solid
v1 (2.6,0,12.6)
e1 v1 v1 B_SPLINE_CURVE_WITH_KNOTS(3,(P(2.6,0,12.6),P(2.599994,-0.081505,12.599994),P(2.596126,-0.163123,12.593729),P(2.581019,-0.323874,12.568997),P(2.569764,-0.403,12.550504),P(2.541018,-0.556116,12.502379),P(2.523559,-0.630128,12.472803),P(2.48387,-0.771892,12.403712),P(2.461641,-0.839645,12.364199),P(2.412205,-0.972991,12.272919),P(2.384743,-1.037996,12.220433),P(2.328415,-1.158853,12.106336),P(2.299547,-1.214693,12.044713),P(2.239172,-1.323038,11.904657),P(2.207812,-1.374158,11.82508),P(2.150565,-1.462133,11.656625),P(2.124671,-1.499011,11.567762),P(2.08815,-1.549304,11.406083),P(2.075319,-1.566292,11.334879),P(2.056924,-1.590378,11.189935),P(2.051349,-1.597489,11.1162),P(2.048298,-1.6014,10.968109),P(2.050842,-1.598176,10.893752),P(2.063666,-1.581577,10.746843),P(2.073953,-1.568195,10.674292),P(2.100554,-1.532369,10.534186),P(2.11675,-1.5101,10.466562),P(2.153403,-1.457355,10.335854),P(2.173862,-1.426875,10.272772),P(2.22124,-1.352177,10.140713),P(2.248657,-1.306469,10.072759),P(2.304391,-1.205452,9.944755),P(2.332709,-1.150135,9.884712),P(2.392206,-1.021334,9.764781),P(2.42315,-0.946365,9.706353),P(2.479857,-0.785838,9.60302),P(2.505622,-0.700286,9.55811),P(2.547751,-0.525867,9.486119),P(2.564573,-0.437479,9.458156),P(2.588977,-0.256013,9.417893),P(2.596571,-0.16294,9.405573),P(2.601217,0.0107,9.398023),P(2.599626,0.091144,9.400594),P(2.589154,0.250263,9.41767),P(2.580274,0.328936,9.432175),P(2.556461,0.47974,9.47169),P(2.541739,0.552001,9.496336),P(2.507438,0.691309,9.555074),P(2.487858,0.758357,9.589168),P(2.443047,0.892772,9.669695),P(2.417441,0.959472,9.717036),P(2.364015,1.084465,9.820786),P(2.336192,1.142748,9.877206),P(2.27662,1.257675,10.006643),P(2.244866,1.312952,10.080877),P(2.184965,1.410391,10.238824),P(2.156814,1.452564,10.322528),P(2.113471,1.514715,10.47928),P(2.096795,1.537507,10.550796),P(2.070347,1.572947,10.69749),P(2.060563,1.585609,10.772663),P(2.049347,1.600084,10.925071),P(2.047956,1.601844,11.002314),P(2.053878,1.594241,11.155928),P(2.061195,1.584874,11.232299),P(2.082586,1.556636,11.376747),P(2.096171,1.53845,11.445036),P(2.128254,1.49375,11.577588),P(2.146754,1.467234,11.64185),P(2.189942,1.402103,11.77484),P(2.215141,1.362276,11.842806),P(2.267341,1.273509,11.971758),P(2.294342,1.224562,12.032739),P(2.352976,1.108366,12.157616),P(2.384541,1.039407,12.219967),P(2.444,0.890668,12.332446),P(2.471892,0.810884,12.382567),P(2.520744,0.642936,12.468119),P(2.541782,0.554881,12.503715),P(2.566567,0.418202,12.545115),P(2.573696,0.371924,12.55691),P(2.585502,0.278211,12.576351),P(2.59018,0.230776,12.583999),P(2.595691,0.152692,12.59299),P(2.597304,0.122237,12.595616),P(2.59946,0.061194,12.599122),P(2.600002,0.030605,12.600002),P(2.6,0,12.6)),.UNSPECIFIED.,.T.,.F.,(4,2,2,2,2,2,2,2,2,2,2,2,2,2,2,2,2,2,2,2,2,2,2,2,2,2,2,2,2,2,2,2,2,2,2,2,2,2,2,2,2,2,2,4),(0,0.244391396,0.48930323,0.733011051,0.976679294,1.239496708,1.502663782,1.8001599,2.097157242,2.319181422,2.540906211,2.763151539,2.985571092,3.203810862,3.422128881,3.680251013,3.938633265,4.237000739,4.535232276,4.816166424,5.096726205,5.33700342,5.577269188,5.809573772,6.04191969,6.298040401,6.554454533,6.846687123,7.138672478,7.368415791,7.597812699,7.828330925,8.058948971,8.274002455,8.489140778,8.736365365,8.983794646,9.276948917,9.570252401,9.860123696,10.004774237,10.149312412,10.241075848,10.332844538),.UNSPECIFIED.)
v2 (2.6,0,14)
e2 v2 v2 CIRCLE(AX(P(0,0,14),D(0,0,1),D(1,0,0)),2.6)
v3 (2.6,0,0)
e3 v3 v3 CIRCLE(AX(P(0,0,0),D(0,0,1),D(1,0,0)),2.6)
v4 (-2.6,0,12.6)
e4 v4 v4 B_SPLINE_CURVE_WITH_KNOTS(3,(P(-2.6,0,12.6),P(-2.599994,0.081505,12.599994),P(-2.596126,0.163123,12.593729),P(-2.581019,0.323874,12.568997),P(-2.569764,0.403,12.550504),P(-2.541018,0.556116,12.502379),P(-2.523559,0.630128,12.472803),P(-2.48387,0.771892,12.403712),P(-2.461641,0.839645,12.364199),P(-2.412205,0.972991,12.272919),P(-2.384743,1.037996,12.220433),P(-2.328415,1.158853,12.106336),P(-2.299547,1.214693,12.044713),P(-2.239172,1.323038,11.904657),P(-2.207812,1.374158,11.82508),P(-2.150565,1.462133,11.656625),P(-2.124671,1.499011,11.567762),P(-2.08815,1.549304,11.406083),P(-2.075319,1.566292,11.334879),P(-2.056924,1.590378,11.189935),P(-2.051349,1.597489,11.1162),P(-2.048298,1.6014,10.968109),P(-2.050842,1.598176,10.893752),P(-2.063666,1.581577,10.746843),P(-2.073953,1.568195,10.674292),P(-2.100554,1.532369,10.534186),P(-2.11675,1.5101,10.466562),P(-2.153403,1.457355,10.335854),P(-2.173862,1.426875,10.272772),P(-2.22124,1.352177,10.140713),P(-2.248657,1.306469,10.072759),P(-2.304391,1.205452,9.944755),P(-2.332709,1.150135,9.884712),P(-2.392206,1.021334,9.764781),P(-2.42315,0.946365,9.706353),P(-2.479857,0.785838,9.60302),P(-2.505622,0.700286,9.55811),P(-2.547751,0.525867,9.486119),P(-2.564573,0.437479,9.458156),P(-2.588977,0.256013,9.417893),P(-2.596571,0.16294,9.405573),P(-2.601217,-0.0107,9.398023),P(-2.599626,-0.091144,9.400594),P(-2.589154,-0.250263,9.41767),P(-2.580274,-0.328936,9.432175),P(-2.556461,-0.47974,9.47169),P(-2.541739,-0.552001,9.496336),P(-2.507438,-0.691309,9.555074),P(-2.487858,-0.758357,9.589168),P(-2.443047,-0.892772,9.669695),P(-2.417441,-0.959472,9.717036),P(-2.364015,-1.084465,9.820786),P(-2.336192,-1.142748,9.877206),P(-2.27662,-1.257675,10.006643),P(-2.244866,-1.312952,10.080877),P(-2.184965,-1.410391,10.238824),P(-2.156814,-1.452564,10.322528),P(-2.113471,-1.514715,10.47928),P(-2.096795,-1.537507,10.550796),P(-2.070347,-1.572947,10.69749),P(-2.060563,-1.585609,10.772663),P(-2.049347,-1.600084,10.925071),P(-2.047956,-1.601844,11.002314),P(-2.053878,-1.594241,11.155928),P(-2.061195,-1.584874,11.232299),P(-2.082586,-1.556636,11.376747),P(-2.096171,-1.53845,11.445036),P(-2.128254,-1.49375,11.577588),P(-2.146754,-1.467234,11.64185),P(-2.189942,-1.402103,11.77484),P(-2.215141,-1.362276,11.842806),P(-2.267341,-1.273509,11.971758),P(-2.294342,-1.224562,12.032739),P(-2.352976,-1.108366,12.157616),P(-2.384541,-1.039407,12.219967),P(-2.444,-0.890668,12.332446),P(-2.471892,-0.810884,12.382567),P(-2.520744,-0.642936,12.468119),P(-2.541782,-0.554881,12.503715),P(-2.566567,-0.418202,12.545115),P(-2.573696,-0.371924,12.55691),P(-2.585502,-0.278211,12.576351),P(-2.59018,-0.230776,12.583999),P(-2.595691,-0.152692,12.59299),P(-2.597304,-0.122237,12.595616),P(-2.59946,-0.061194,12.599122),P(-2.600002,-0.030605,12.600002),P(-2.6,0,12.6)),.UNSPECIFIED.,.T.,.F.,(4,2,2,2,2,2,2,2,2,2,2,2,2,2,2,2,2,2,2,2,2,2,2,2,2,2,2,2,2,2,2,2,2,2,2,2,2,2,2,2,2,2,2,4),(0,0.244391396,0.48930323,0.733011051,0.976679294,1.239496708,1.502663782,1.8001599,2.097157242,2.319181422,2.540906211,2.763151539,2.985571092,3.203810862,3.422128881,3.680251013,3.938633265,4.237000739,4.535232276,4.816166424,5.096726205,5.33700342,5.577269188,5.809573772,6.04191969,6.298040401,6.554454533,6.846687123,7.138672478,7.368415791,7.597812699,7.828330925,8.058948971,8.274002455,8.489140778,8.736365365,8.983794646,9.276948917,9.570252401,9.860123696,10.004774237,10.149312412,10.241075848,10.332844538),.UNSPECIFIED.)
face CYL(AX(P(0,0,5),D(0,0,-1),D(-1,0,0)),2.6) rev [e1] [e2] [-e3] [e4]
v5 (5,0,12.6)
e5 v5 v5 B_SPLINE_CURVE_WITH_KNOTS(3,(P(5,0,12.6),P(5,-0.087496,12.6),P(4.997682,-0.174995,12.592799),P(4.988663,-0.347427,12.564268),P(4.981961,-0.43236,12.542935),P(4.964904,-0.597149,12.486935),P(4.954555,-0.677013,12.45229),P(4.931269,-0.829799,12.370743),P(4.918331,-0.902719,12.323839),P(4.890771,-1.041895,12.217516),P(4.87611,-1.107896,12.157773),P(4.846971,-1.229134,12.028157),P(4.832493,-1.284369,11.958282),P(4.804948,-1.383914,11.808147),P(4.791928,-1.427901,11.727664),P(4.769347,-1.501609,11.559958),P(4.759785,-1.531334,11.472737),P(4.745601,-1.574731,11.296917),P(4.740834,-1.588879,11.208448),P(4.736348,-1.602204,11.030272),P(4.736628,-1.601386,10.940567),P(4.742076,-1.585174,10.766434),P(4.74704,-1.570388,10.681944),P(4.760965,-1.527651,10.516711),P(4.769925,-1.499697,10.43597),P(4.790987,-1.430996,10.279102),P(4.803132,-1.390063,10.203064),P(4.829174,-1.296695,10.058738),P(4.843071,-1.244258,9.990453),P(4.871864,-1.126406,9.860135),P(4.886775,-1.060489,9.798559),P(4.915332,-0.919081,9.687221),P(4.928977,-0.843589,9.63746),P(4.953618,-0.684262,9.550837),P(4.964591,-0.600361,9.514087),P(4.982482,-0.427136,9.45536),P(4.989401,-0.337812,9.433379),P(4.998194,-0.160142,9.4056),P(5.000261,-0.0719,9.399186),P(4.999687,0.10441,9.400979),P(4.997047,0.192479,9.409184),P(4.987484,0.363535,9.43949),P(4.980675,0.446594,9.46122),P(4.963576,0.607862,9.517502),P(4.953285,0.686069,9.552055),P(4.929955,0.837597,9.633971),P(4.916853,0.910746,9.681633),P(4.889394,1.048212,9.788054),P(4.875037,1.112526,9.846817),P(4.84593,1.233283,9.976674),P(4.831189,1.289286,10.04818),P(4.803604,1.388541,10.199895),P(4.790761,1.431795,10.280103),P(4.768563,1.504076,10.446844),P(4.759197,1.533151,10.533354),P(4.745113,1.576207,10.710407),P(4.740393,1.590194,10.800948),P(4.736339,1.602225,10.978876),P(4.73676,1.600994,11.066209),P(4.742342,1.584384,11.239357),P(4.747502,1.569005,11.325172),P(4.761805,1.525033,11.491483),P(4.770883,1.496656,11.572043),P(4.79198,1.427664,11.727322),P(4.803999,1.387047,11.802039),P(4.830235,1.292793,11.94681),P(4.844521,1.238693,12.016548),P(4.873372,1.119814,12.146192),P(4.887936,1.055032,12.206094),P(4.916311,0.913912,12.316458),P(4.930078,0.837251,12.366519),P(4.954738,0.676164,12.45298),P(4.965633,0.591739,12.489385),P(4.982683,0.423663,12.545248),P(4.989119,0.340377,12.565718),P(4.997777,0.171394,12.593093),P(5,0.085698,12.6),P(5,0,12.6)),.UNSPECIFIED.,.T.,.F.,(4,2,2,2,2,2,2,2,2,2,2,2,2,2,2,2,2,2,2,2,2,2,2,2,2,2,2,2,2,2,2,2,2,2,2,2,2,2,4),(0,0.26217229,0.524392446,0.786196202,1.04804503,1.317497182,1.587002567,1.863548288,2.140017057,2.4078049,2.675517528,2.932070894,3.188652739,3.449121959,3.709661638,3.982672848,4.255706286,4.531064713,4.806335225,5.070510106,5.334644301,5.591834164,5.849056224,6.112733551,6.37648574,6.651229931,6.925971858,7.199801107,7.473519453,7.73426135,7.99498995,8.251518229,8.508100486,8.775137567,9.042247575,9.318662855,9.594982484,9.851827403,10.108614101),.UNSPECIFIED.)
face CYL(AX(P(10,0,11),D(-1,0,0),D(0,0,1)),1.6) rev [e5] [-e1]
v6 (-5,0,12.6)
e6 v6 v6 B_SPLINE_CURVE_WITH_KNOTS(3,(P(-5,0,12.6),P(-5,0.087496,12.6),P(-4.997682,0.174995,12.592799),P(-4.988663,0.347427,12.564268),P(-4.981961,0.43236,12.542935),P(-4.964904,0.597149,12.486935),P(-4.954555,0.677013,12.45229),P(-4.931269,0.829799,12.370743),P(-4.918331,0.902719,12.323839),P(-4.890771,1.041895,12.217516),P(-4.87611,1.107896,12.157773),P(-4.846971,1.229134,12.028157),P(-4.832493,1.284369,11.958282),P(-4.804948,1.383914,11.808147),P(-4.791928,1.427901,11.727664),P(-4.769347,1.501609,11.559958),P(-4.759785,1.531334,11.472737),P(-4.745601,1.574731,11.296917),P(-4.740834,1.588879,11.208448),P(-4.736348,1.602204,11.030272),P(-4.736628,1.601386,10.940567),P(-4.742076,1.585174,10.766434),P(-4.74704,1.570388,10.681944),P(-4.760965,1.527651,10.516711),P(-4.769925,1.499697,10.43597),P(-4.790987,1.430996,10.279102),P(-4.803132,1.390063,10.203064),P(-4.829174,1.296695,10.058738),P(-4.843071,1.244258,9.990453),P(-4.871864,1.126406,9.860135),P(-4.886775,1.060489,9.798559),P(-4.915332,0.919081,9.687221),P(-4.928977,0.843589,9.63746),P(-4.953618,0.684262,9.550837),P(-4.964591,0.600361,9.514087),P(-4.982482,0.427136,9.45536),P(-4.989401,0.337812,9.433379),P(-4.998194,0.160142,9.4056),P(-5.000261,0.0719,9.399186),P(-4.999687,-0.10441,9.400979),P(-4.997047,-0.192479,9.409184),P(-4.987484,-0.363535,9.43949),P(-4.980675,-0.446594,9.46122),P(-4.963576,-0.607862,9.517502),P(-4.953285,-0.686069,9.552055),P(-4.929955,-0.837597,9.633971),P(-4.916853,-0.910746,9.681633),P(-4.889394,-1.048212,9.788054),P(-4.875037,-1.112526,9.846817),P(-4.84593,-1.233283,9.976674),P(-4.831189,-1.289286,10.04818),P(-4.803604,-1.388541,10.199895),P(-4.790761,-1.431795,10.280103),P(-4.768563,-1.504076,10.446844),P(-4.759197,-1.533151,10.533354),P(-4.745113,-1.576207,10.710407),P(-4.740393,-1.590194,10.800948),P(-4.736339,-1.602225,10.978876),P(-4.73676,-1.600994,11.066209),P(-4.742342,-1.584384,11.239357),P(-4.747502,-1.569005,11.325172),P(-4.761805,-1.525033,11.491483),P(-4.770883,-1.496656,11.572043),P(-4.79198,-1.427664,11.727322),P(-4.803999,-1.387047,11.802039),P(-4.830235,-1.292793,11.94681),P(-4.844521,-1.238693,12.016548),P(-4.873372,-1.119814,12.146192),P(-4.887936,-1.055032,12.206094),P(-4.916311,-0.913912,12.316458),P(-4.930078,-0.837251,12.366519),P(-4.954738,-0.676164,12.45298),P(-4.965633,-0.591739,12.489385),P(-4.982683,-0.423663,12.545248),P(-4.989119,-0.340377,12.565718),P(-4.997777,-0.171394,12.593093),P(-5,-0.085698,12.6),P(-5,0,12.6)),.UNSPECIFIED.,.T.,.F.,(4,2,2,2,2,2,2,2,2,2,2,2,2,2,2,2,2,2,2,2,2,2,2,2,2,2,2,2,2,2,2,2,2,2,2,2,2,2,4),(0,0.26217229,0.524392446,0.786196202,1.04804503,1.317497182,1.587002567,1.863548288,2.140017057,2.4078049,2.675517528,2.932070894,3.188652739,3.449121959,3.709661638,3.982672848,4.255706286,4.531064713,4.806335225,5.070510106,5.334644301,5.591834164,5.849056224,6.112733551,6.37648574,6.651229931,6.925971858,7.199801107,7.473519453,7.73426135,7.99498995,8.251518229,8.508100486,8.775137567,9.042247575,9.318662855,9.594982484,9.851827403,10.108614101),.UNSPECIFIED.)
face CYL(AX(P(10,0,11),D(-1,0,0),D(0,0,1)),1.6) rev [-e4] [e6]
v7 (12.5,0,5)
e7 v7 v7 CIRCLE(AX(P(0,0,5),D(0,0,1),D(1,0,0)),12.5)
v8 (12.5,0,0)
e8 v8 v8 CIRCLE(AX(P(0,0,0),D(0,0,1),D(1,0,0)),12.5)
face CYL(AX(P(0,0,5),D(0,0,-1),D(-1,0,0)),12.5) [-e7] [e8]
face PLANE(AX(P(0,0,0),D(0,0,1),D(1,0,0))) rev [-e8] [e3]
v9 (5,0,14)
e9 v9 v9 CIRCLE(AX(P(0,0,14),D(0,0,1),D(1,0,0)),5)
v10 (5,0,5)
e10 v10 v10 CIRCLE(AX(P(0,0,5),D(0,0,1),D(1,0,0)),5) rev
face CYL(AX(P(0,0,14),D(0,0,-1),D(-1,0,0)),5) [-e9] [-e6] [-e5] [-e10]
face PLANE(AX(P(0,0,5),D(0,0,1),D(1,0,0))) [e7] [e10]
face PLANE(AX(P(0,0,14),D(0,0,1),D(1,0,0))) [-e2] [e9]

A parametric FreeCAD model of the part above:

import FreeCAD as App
import Part
import Sketcher
from FreeCAD import Vector

doc = App.newDocument("Part")
body = doc.addObject("PartDesign::Body", "Body")

sketch1 = body.newObject("Sketcher::SketchObject", "Sketch")
sketch1.AttachmentSupport = (doc.getObject("XY_Plane"), [""])
sketch1.MapMode = "FlatFace"
sketch1.addGeometry(Part.Circle(Vector(0, 0, 0), Vector(0, 0, 1), 12.5), False)
sketch1.addGeometry(Part.Circle(Vector(0, 0, 0), Vector(0, 0, 1), 2.6), False)
sketch1.addConstraint(Sketcher.Constraint("Coincident", 0, 3, -1, 1))
sketch1.addConstraint(Sketcher.Constraint("Coincident", 1, 3, -1, 1))
sketch1.addConstraint(Sketcher.Constraint("Diameter", 0, 25.0))
sketch1.addConstraint(Sketcher.Constraint("Diameter", 1, 5.2))
pad1 = body.newObject("PartDesign::Pad", "Pad")
pad1.Profile = sketch1
pad1.Length = 5

sketch2 = body.newObject("Sketcher::SketchObject", "Sketch001")
sketch2.AttachmentSupport = (doc.getObject("XY_Plane"), [""])
sketch2.MapMode = "FlatFace"
sketch2.addGeometry(Part.Circle(Vector(0, 0, 0), Vector(0, 0, 1), 5), False)
sketch2.addGeometry(Part.Circle(Vector(0, 0, 0), Vector(0, 0, 1), 2.6), False)
sketch2.addConstraint(Sketcher.Constraint("Coincident", 0, 3, -1, 1))
sketch2.addConstraint(Sketcher.Constraint("Coincident", 1, 3, -1, 1))
sketch2.addConstraint(Sketcher.Constraint("Diameter", 0, 10.0))
sketch2.addConstraint(Sketcher.Constraint("Diameter", 1, 5.2))
pad2 = body.newObject("PartDesign::Pad", "Pad001")
pad2.Profile = sketch2
pad2.Length = 14

sketch3 = body.newObject("Sketcher::SketchObject", "Sketch002")
sketch3.AttachmentSupport = (doc.getObject("YZ_Plane"), [""])
sketch3.MapMode = "FlatFace"
sketch3.addGeometry(Part.Circle(Vector(0, 11, 0), Vector(0, 0, 1), 1.6), False)
sketch3.addConstraint(Sketcher.Constraint("PointOnObject", 0, 3, -2))
sketch3.addConstraint(Sketcher.Constraint("Diameter", 0, 3.2))
sketch3.addConstraint(Sketcher.Constraint("DistanceY", -1, 1, 0, 3, 11.0))
pocket1 = body.newObject("PartDesign::Pocket", "Pocket")
pocket1.Profile = sketch3
pocket1.Type = "ThroughAll"
pocket1.Midplane = True

doc.recompute()
